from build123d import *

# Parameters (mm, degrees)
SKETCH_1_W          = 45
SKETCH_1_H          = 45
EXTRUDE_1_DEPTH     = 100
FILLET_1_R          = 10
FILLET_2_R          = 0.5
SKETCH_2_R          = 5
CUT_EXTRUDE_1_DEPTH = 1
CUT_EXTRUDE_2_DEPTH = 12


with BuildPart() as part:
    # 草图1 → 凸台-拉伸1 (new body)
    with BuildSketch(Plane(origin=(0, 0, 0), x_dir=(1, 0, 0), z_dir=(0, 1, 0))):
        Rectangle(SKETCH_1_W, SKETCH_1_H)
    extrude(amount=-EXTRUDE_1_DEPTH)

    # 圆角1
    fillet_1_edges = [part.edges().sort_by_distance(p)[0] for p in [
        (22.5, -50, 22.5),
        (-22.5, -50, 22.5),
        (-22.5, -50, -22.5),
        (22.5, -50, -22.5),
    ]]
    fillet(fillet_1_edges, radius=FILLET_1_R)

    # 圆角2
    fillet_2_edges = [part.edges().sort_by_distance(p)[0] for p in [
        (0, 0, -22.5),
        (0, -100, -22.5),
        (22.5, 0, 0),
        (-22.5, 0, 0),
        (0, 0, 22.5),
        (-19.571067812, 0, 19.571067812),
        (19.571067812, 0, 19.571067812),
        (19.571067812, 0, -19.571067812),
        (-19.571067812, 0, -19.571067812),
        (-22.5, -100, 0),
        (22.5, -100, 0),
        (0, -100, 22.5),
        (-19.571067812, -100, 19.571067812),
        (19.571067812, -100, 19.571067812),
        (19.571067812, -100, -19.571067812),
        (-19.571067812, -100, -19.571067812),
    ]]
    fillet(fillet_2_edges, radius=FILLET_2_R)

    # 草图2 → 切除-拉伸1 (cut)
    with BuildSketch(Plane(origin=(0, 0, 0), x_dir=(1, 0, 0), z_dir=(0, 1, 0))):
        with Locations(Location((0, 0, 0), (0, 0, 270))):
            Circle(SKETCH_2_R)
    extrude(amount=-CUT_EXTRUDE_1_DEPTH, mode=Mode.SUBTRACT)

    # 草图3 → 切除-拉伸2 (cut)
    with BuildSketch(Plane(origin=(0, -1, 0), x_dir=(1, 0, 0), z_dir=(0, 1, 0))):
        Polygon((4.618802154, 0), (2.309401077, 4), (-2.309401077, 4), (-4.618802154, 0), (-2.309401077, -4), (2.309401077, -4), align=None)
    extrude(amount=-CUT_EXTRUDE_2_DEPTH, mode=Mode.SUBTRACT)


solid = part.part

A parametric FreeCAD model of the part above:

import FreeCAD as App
import Part
import Sketcher
from FreeCAD import Vector
Q = App.Units.Quantity


def edges_at(feature, points):
    """Names of the edges that pass closest to the given points."""
    edges = feature.Shape.Edges
    near = lambda p: min(range(len(edges)), key=lambda i: edges[i].distToShape(Part.Vertex(*p))[0])
    return sorted({f"Edge{near(p) + 1}" for p in points})

doc = App.newDocument("Part")
params = doc.addObject("Spreadsheet::Sheet", "Params")
for row, (alias, value) in enumerate([
    ("sketch1_width", "45 mm"),
    ("pad1_length", "100 mm"),
    ("fillet_radius", "10 mm"),
    ("fillet2_radius", "0.5 mm"),
    ("sketch2_diameter", "10 mm"),
    ("pocket1_length", "1 mm"),
    ("pocket2_length", "12 mm"),
], start=1):
    params.set(f"A{row}", alias)
    params.set(f"B{row}", "=" + value)
    params.setAlias(f"B{row}", alias)

body = doc.addObject("PartDesign::Body", "Body")

sketch1 = body.newObject("Sketcher::SketchObject", "Sketch")
sketch1.AttachmentSupport = (doc.getObject("XZ_Plane"), [""])
sketch1.MapMode = "FlatFace"
sketch1.addGeometry(Part.LineSegment(Vector(-22.5, -22.5, 0), Vector(-22.5, 22.5, 0)), False)
sketch1.addGeometry(Part.LineSegment(Vector(-22.5, 22.5, 0), Vector(22.5, 22.5, 0)), False)
sketch1.addGeometry(Part.LineSegment(Vector(22.5, 22.5, 0), Vector(22.5, -22.5, 0)), False)
sketch1.addGeometry(Part.LineSegment(Vector(22.5, -22.5, 0), Vector(-22.5, -22.5, 0)), False)
sketch1.addConstraint(Sketcher.Constraint("Coincident", 0, 2, 1, 1))
sketch1.addConstraint(Sketcher.Constraint("Coincident", 1, 2, 2, 1))
sketch1.addConstraint(Sketcher.Constraint("Coincident", 2, 2, 3, 1))
sketch1.addConstraint(Sketcher.Constraint("Coincident", 3, 2, 0, 1))
sketch1.addConstraint(Sketcher.Constraint("Vertical", 0))
sketch1.addConstraint(Sketcher.Constraint("Horizontal", 1))
sketch1.addConstraint(Sketcher.Constraint("Vertical", 2))
sketch1.addConstraint(Sketcher.Constraint("Horizontal", 3))
sketch1.addConstraint(Sketcher.Constraint("Symmetric", 0, 2, 2, 2, -1, 1))
sketch1.addConstraint(Sketcher.Constraint("Equal", 3, 0))
sketch1.addConstraint(Sketcher.Constraint("DistanceX", 1, 1, 1, 2, Q("45 mm")))
sketch1.setExpression("Constraints[10]", "Params.sketch1_width")
pad1 = body.newObject("PartDesign::Pad", "Pad")
pad1.Profile = sketch1
pad1.setExpression("Length", "Params.pad1_length")
doc.recompute()

fillet = body.newObject("PartDesign::Fillet", "Fillet")
fillet.Base = (pad1, edges_at(pad1, [
    (22.5, -50, 22.5),
    (-22.5, -50, 22.5),
    (-22.5, -50, -22.5),
    (22.5, -50, -22.5),
]))
fillet.setExpression("Radius", "Params.fillet_radius")
doc.recompute()

fillet2 = body.newObject("PartDesign::Fillet", "Fillet001")
fillet2.Base = (fillet, edges_at(fillet, [
    (0, 0, -22.5),
    (0, -100, -22.5),
    (22.5, 0, 0),
    (-22.5, 0, 0),
    (0, 0, 22.5),
    (-19.571, 0, 19.571),
    (19.571, 0, 19.571),
    (19.571, 0, -19.571),
    (-19.571, 0, -19.571),
    (-22.5, -100, 0),
    (22.5, -100, 0),
    (0, -100, 22.5),
    (-19.571, -100, 19.571),
    (19.571, -100, 19.571),
    (19.571, -100, -19.571),
    (-19.571, -100, -19.571),
]))
fillet2.setExpression("Radius", "Params.fillet2_radius")

sketch2 = body.newObject("Sketcher::SketchObject", "Sketch001")
sketch2.AttachmentSupport = (doc.getObject("XZ_Plane"), [""])
sketch2.MapMode = "FlatFace"
sketch2.addGeometry(Part.Circle(Vector(0, 0, 0), Vector(0, 0, 1), 5), False)
sketch2.addConstraint(Sketcher.Constraint("Coincident", 0, 3, -1, 1))
sketch2.addConstraint(Sketcher.Constraint("Diameter", 0, Q("10 mm")))
sketch2.setExpression("Constraints[1]", "Params.sketch2_diameter")
pocket1 = body.newObject("PartDesign::Pocket", "Pocket")
pocket1.Profile = sketch2
pocket1.setExpression("Length", "Params.pocket1_length")
pocket1.Reversed = True

sketch3 = body.newObject("Sketcher::SketchObject", "Sketch002")
sketch3.AttachmentSupport = (doc.getObject("XZ_Plane"), [""])
sketch3.MapMode = "FlatFace"
sketch3.AttachmentOffset = App.Placement(Vector(0, 0, 1), App.Rotation())
sketch3.addGeometry(Part.LineSegment(Vector(4.618802, 0, 0), Vector(2.309401, -4, 0)), False)
sketch3.addGeometry(Part.LineSegment(Vector(2.309401, -4, 0), Vector(-2.309401, -4, 0)), False)
sketch3.addGeometry(Part.LineSegment(Vector(-2.309401, -4, 0), Vector(-4.618802, 0, 0)), False)
sketch3.addGeometry(Part.LineSegment(Vector(-4.618802, 0, 0), Vector(-2.309401, 4, 0)), False)
sketch3.addGeometry(Part.LineSegment(Vector(-2.309401, 4, 0), Vector(2.309401, 4, 0)), False)
sketch3.addGeometry(Part.LineSegment(Vector(2.309401, 4, 0), Vector(4.618802, 0, 0)), False)
sketch3.addConstraint(Sketcher.Constraint("Coincident", 0, 2, 1, 1))
sketch3.addConstraint(Sketcher.Constraint("Coincident", 1, 2, 2, 1))
sketch3.addConstraint(Sketcher.Constraint("Coincident", 2, 2, 3, 1))
sketch3.addConstraint(Sketcher.Constraint("Coincident", 3, 2, 4, 1))
sketch3.addConstraint(Sketcher.Constraint("Coincident", 4, 2, 5, 1))
sketch3.addConstraint(Sketcher.Constraint("Coincident", 5, 2, 0, 1))
sketch3.addConstraint(Sketcher.Constraint("Horizontal", 1))
sketch3.addConstraint(Sketcher.Constraint("Horizontal", 4))
sketch3.addConstraint(Sketcher.Constraint("Symmetric", 0, 2, 3, 2, -1, 1))
sketch3.addConstraint(Sketcher.Constraint("Symmetric", 2, 2, 5, 2, -1, 1))
sketch3.addConstraint(Sketcher.Constraint("PointOnObject", 2, 2, -1))
sketch3.addConstraint(Sketcher.Constraint("Parallel", 2, 5))
sketch3.addConstraint(Sketcher.Constraint("Vertical", 1, 2, 3, 2))
sketch3.addConstraint(Sketcher.Constraint("Angle", 0, Q("-120 deg")))
sketch3.addConstraint(Sketcher.Constraint("DistanceY", 0, 2, -1, 1, Q("4 mm")))
sketch3.addConstraint(Sketcher.Constraint("DistanceX", -1, 1, 0, 2, Q("2.309401 mm")))
pocket2 = body.newObject("PartDesign::Pocket", "Pocket001")
pocket2.Profile = sketch3
pocket2.setExpression("Length", "Params.pocket2_length")
pocket2.Reversed = True

doc.recompute()
